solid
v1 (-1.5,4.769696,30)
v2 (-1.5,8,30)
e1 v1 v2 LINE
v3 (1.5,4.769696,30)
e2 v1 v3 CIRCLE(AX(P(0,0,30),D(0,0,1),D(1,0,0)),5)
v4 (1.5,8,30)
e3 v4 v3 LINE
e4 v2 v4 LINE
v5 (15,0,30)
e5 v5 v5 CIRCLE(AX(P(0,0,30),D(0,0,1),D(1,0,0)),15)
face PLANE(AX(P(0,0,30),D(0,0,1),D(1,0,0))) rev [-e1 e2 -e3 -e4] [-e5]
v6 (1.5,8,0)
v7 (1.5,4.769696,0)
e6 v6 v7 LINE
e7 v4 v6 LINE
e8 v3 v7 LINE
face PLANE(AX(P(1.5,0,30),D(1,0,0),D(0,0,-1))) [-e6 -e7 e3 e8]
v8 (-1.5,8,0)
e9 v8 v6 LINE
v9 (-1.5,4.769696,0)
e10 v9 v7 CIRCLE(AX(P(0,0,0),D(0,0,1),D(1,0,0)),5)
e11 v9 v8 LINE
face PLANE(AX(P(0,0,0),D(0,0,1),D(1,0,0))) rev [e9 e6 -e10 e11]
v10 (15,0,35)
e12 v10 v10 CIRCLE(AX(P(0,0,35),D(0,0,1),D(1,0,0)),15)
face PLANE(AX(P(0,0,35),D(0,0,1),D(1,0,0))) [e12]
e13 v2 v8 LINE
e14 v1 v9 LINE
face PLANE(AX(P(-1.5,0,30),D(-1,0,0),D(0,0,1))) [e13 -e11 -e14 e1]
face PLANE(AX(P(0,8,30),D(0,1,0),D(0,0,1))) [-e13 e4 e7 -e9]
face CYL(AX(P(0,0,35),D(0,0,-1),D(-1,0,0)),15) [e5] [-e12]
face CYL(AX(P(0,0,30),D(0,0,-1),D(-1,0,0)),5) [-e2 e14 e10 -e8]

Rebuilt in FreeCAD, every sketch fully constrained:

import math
import FreeCAD as App
import Part
import Sketcher
from FreeCAD import Vector

doc = App.newDocument("Part")
params = doc.addObject("Spreadsheet::Sheet", "Params")
for row, (alias, value) in enumerate([
    ("sketch1_radius", "5 mm"),
    ("sketch1_width", "3 mm"),
    ("pad1_length", "30 mm"),
    ("sketch2_diameter", "30 mm"),
    ("pad2_length", "5 mm"),
], start=1):
    params.set(f"A{row}", alias)
    params.set(f"B{row}", "=" + value)
    params.setAlias(f"B{row}", alias)

body = doc.addObject("PartDesign::Body", "Body")

sketch1 = body.newObject("Sketcher::SketchObject", "Sketch")
sketch1.AttachmentSupport = (doc.getObject("XY_Plane"), [""])
sketch1.MapMode = "FlatFace"
sketch1.addGeometry(Part.LineSegment(Vector(1.5, 4.8, 0), Vector(1.5, 8, 0)), False)
sketch1.addGeometry(Part.LineSegment(Vector(1.5, 8, 0), Vector(-1.5, 8, 0)), False)
sketch1.addGeometry(Part.LineSegment(Vector(-1.5, 8, 0), Vector(-1.5, 4.8, 0)), False)
sketch1.addGeometry(Part.ArcOfCircle(Part.Circle(Vector(0, 0, 0), Vector(0, 0, 1), 5), math.radians(107), math.radians(360)), False)
sketch1.addGeometry(Part.ArcOfCircle(Part.Circle(Vector(0, 0, 0), Vector(0, 0, 1), 5), math.radians(0), math.radians(73)), False)
sketch1.addConstraint(Sketcher.Constraint("Coincident", 0, 2, 1, 1))
sketch1.addConstraint(Sketcher.Constraint("Coincident", 1, 2, 2, 1))
sketch1.addConstraint(Sketcher.Constraint("Coincident", 2, 2, 3, 1))
sketch1.addConstraint(Sketcher.Constraint("Tangent", 3, 2, 4, 1))
sketch1.addConstraint(Sketcher.Constraint("Coincident", 4, 2, 0, 1))
sketch1.addConstraint(Sketcher.Constraint("Vertical", 0))
sketch1.addConstraint(Sketcher.Constraint("Horizontal", 1))
sketch1.addConstraint(Sketcher.Constraint("Vertical", 2))
sketch1.addConstraint(Sketcher.Constraint("Coincident", 3, 3, -1, 1))
sketch1.addConstraint(Sketcher.Constraint("Equal", 3, 4))
sketch1.addConstraint(Sketcher.Constraint("PointOnObject", 3, 2, -1))
sketch1.addConstraint(Sketcher.Constraint("Horizontal", 2, 2, 4, 2))
sketch1.addConstraint(Sketcher.Constraint("Radius", 3, 5.0))
sketch1.addConstraint(Sketcher.Constraint("DistanceX", 1, 2, 1, 1, 3.0))
sketch1.addConstraint(Sketcher.Constraint("DistanceY", -1, 1, 0, 2, 8.0))
sketch1.setExpression("Constraints[12]", "Params.sketch1_radius")
sketch1.setExpression("Constraints[13]", "Params.sketch1_width")
pad1 = body.newObject("PartDesign::Pad", "Pad")
pad1.Profile = sketch1
pad1.setExpression("Length", "Params.pad1_length")

sketch2 = body.newObject("Sketcher::SketchObject", "Sketch001")
sketch2.AttachmentSupport = (doc.getObject("XY_Plane"), [""])
sketch2.MapMode = "FlatFace"
sketch2.AttachmentOffset = App.Placement(Vector(0, 0, 30), App.Rotation())
sketch2.addGeometry(Part.Circle(Vector(0, 0, 0), Vector(0, 0, 1), 15), False)
sketch2.addConstraint(Sketcher.Constraint("Coincident", 0, 3, -1, 1))
sketch2.addConstraint(Sketcher.Constraint("Diameter", 0, 30.0))
sketch2.setExpression("Constraints[1]", "Params.sketch2_diameter")
pad2 = body.newObject("PartDesign::Pad", "Pad001")
pad2.Profile = sketch2
pad2.setExpression("Length", "Params.pad2_length")

doc.recompute()
